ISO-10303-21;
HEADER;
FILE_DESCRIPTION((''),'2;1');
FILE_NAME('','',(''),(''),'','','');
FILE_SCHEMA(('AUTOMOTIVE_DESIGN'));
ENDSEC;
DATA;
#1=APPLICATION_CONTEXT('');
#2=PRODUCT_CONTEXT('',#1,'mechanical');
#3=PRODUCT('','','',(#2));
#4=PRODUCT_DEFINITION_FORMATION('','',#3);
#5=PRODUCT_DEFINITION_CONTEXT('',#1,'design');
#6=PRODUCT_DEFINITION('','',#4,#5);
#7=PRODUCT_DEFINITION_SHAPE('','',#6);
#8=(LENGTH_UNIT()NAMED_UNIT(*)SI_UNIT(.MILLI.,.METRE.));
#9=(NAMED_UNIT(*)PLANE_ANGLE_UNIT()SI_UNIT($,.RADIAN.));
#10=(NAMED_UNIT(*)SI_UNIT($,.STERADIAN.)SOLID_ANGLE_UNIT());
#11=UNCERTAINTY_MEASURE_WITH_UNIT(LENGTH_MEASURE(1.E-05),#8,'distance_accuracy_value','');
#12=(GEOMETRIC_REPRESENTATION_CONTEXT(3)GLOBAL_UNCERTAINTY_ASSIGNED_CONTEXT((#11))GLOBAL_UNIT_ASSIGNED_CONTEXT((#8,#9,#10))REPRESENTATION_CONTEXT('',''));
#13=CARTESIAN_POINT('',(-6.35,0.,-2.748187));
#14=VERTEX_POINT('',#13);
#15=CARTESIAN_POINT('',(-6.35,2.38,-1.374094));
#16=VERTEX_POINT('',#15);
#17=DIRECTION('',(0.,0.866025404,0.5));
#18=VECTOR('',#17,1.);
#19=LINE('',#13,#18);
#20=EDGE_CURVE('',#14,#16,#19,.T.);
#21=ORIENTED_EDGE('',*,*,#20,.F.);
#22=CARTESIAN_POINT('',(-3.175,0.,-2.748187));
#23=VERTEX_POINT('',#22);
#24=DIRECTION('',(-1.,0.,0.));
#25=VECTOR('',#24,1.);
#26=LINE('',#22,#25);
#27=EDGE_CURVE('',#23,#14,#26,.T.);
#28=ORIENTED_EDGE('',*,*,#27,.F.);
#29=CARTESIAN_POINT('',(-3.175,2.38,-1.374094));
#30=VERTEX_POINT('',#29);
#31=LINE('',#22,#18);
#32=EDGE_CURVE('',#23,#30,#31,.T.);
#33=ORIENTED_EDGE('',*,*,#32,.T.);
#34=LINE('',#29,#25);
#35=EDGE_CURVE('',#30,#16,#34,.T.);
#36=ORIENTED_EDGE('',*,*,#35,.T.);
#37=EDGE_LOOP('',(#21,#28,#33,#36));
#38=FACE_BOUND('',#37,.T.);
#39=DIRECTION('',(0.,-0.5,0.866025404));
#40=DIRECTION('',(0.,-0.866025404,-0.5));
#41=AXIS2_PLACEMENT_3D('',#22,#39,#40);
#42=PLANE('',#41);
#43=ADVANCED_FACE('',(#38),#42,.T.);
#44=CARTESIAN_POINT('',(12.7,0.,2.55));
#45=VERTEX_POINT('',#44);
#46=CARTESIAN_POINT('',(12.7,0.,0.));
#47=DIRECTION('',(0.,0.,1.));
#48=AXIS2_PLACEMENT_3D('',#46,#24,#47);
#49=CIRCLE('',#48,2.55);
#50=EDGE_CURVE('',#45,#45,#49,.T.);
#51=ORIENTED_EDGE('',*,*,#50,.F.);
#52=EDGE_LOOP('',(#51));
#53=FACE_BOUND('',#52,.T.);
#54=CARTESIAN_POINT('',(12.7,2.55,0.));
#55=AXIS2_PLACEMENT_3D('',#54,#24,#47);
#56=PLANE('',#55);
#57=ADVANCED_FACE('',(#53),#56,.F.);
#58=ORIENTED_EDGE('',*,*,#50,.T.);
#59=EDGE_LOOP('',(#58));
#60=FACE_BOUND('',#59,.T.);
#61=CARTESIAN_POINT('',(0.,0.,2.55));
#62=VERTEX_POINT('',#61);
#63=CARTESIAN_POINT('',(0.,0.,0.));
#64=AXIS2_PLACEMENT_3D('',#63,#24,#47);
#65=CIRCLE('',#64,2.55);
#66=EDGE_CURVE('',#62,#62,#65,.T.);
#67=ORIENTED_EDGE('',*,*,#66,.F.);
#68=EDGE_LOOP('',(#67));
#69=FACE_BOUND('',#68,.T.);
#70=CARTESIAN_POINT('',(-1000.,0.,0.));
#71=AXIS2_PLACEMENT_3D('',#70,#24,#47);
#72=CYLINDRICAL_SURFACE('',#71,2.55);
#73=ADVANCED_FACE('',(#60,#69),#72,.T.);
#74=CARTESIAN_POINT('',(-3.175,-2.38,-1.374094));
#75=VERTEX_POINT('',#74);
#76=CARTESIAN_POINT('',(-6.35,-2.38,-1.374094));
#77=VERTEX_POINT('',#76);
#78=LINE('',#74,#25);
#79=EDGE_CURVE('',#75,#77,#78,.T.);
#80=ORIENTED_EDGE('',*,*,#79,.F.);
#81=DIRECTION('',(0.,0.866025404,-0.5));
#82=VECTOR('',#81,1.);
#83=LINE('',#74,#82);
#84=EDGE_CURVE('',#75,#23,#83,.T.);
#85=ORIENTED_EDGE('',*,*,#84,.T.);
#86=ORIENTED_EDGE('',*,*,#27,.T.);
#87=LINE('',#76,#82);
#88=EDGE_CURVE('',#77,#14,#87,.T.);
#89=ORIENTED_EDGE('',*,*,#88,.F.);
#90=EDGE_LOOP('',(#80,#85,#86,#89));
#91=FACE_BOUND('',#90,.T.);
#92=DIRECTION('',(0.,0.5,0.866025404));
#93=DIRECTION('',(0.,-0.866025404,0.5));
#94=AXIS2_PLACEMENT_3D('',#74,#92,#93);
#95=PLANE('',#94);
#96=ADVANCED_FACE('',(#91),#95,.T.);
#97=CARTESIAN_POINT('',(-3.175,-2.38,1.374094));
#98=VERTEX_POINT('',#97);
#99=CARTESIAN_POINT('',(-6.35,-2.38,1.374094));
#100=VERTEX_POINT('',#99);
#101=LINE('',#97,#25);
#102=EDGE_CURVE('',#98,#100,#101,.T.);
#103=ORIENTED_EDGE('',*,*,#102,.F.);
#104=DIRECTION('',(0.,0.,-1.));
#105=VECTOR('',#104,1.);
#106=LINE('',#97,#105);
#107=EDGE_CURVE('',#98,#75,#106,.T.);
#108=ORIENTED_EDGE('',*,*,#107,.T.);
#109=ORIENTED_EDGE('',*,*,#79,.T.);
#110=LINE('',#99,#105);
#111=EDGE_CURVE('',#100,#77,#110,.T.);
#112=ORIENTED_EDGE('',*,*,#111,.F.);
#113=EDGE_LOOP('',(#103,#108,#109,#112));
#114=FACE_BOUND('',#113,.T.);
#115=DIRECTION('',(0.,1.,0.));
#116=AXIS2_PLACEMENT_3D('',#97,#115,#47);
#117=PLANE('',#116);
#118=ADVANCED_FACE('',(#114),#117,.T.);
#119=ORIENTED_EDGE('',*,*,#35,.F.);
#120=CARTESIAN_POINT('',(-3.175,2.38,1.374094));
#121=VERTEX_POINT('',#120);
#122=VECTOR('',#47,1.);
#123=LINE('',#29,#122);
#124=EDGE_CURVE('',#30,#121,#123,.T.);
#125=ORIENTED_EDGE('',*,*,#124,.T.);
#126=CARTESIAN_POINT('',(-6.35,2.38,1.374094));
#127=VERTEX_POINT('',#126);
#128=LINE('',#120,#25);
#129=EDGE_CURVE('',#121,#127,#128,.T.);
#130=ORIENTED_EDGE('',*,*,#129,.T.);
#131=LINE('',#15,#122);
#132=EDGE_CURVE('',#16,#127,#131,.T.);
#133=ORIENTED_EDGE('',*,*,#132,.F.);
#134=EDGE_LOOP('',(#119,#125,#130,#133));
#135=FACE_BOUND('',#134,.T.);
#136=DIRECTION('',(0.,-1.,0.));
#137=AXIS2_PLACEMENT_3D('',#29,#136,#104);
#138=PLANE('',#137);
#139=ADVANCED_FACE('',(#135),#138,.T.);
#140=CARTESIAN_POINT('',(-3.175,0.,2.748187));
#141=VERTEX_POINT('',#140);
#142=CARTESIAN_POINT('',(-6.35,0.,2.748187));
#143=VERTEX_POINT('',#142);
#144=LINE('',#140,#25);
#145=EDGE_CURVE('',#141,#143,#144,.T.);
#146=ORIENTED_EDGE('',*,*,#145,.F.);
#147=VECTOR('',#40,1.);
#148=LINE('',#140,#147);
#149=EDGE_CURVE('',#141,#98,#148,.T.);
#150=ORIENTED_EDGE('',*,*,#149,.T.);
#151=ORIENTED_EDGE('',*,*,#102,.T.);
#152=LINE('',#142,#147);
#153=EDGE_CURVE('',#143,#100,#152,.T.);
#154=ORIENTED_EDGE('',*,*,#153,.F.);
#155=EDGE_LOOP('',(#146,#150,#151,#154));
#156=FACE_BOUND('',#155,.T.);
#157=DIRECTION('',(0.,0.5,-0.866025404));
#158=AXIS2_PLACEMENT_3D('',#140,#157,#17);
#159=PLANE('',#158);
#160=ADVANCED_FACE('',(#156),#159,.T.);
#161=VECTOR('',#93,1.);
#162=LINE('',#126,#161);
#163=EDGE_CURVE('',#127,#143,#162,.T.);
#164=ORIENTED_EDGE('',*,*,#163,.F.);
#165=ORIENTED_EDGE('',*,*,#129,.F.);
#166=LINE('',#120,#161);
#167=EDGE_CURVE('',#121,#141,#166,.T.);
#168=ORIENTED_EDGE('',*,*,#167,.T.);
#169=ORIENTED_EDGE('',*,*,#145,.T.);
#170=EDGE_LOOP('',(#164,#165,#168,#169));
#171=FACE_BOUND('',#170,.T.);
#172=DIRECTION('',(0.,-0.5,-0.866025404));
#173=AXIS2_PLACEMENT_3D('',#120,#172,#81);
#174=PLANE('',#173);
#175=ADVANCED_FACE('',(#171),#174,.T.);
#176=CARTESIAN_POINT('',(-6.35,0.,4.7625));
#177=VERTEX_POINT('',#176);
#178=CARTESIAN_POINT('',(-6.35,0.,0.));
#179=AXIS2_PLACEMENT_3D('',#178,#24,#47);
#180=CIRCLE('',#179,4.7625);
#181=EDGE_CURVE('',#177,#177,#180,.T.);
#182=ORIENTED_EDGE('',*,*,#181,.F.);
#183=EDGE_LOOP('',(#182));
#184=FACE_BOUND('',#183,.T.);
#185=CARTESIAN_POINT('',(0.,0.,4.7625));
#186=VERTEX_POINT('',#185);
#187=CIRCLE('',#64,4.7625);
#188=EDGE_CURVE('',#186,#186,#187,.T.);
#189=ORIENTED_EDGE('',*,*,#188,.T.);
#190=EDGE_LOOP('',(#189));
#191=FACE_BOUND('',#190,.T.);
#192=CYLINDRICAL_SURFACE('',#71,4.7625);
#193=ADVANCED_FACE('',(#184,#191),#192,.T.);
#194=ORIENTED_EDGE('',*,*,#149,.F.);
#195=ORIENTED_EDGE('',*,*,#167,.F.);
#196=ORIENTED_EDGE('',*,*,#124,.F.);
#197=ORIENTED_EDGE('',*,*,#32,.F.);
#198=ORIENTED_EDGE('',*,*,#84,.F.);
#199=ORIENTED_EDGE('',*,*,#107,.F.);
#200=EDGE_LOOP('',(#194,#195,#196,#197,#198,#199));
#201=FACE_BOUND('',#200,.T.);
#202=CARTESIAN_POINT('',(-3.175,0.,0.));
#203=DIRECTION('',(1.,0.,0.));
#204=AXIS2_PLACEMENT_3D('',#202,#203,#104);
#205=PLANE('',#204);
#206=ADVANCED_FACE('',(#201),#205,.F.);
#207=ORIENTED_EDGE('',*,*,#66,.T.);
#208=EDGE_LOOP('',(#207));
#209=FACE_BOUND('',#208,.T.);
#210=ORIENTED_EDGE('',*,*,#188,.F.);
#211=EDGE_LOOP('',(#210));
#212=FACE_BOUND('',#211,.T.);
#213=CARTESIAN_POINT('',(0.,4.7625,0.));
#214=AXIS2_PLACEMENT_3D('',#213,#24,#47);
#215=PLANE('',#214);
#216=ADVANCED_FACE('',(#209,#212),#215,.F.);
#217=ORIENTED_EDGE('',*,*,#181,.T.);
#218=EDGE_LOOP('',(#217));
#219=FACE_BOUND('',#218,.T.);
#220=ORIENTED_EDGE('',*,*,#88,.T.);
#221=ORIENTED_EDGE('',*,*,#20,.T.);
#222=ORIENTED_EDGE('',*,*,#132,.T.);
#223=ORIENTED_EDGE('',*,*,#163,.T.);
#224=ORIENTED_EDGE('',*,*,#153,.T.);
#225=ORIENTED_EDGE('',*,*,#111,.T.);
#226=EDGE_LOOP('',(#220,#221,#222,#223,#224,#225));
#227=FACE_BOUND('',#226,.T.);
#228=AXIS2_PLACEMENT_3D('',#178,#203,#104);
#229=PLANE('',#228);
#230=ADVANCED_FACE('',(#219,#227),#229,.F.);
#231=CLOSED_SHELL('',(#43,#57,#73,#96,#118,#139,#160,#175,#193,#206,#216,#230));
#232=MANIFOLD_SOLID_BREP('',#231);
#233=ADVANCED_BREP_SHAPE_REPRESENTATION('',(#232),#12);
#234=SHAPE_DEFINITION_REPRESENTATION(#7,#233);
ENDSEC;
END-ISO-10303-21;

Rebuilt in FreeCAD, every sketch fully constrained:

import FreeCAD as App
import Part
import Sketcher
Q = App.Units.Quantity


def add_polygon(sketch, points):
    """Adds a closed chain of lines whose ends are joined by coincident constraints."""
    first, n = sketch.GeometryCount, len(points)
    for a, b in zip(points, points[1:] + points[:1]):
        sketch.addGeometry(Part.LineSegment(App.Vector(*a, 0), App.Vector(*b, 0)), False)
    for i in range(n):
        sketch.addConstraint(Sketcher.Constraint("Coincident", first + i, 2, first + (i + 1) % n, 1))

doc = App.newDocument("Part")
body = doc.addObject("PartDesign::Body", "Body")

# Sketch on XY plane
sketch1 = body.newObject("Sketcher::SketchObject", "Sketch")
sketch1.AttachmentSupport = (doc.getObject("XY_Plane"), [""])
sketch1.MapMode = "FlatFace"
add_polygon(sketch1, [(-6.35, 4.7625), (-6.35, 0), (12.7, 0), (12.7, 2.55), (0, 2.55), (0, 4.7625)])  # lines 0-5
sketch1.addConstraint([
    Sketcher.Constraint("Vertical", 0),
    Sketcher.Constraint("Horizontal", 1),
    Sketcher.Constraint("Vertical", 2),
    Sketcher.Constraint("Horizontal", 3),
    Sketcher.Constraint("Vertical", 4),
    Sketcher.Constraint("Horizontal", 5),
    Sketcher.Constraint("PointOnObject", 0, 2, -1),
    Sketcher.Constraint("PointOnObject", 3, 2, -2),
    Sketcher.Constraint("DistanceX", 3, 2, 3, 1, Q("0.5 in")),
    Sketcher.Constraint("DistanceX", 1, 1, 1, 2, Q("0.75 in")),
    Sketcher.Constraint("DistanceY", 0, 2, 0, 1, Q("0.1875 in")),
    Sketcher.Constraint("DistanceY", 2, 1, 2, 2, Q("2.55 mm")),
])
revolution = body.newObject("PartDesign::Revolution", "Revolution")
revolution.Profile = sketch1
revolution.ReferenceAxis = (sketch1, ["H_Axis"])
revolution.Angle = 360

# Sketch on YZ plane
sketch2 = body.newObject("Sketcher::SketchObject", "Sketch001")
sketch2.AttachmentSupport = (doc.getObject("YZ_Plane"), [""])
sketch2.MapMode = "FlatFace"
sketch2.AttachmentOffset = App.Placement(App.Vector(0, 0, -0.25 * 25.4), App.Rotation())
add_polygon(sketch2, [(0, -2.748187), (2.38, -1.374094), (2.38, 1.374094), (0, 2.748187), (-2.38, 1.374094), (-2.38, -1.374094)])  # lines 0-5
sketch2.addConstraint([
    Sketcher.Constraint("Vertical", 1),
    Sketcher.Constraint("Vertical", 4),
    Sketcher.Constraint("Symmetric", 0, 2, 3, 2, -1, 1),
    Sketcher.Constraint("Symmetric", 2, 2, 5, 2, -1, 1),
    Sketcher.Constraint("PointOnObject", 2, 2, -2),
    Sketcher.Constraint("Parallel", 2, 5),
    Sketcher.Constraint("Horizontal", 1, 2, 3, 2),
    Sketcher.Constraint("Angle", 0, Q("30 deg")),
    Sketcher.Constraint("DistanceX", -1, 1, 0, 2, Q("2.38 mm")),
    Sketcher.Constraint("DistanceY", 1, 1, 1, 2, Q("2.748187 mm")),
])
pocket1 = body.newObject("PartDesign::Pocket", "Pocket")
pocket1.Profile = sketch2
pocket1.Length = Q("0.125 in")
pocket1.Reversed = True

doc.recompute()
